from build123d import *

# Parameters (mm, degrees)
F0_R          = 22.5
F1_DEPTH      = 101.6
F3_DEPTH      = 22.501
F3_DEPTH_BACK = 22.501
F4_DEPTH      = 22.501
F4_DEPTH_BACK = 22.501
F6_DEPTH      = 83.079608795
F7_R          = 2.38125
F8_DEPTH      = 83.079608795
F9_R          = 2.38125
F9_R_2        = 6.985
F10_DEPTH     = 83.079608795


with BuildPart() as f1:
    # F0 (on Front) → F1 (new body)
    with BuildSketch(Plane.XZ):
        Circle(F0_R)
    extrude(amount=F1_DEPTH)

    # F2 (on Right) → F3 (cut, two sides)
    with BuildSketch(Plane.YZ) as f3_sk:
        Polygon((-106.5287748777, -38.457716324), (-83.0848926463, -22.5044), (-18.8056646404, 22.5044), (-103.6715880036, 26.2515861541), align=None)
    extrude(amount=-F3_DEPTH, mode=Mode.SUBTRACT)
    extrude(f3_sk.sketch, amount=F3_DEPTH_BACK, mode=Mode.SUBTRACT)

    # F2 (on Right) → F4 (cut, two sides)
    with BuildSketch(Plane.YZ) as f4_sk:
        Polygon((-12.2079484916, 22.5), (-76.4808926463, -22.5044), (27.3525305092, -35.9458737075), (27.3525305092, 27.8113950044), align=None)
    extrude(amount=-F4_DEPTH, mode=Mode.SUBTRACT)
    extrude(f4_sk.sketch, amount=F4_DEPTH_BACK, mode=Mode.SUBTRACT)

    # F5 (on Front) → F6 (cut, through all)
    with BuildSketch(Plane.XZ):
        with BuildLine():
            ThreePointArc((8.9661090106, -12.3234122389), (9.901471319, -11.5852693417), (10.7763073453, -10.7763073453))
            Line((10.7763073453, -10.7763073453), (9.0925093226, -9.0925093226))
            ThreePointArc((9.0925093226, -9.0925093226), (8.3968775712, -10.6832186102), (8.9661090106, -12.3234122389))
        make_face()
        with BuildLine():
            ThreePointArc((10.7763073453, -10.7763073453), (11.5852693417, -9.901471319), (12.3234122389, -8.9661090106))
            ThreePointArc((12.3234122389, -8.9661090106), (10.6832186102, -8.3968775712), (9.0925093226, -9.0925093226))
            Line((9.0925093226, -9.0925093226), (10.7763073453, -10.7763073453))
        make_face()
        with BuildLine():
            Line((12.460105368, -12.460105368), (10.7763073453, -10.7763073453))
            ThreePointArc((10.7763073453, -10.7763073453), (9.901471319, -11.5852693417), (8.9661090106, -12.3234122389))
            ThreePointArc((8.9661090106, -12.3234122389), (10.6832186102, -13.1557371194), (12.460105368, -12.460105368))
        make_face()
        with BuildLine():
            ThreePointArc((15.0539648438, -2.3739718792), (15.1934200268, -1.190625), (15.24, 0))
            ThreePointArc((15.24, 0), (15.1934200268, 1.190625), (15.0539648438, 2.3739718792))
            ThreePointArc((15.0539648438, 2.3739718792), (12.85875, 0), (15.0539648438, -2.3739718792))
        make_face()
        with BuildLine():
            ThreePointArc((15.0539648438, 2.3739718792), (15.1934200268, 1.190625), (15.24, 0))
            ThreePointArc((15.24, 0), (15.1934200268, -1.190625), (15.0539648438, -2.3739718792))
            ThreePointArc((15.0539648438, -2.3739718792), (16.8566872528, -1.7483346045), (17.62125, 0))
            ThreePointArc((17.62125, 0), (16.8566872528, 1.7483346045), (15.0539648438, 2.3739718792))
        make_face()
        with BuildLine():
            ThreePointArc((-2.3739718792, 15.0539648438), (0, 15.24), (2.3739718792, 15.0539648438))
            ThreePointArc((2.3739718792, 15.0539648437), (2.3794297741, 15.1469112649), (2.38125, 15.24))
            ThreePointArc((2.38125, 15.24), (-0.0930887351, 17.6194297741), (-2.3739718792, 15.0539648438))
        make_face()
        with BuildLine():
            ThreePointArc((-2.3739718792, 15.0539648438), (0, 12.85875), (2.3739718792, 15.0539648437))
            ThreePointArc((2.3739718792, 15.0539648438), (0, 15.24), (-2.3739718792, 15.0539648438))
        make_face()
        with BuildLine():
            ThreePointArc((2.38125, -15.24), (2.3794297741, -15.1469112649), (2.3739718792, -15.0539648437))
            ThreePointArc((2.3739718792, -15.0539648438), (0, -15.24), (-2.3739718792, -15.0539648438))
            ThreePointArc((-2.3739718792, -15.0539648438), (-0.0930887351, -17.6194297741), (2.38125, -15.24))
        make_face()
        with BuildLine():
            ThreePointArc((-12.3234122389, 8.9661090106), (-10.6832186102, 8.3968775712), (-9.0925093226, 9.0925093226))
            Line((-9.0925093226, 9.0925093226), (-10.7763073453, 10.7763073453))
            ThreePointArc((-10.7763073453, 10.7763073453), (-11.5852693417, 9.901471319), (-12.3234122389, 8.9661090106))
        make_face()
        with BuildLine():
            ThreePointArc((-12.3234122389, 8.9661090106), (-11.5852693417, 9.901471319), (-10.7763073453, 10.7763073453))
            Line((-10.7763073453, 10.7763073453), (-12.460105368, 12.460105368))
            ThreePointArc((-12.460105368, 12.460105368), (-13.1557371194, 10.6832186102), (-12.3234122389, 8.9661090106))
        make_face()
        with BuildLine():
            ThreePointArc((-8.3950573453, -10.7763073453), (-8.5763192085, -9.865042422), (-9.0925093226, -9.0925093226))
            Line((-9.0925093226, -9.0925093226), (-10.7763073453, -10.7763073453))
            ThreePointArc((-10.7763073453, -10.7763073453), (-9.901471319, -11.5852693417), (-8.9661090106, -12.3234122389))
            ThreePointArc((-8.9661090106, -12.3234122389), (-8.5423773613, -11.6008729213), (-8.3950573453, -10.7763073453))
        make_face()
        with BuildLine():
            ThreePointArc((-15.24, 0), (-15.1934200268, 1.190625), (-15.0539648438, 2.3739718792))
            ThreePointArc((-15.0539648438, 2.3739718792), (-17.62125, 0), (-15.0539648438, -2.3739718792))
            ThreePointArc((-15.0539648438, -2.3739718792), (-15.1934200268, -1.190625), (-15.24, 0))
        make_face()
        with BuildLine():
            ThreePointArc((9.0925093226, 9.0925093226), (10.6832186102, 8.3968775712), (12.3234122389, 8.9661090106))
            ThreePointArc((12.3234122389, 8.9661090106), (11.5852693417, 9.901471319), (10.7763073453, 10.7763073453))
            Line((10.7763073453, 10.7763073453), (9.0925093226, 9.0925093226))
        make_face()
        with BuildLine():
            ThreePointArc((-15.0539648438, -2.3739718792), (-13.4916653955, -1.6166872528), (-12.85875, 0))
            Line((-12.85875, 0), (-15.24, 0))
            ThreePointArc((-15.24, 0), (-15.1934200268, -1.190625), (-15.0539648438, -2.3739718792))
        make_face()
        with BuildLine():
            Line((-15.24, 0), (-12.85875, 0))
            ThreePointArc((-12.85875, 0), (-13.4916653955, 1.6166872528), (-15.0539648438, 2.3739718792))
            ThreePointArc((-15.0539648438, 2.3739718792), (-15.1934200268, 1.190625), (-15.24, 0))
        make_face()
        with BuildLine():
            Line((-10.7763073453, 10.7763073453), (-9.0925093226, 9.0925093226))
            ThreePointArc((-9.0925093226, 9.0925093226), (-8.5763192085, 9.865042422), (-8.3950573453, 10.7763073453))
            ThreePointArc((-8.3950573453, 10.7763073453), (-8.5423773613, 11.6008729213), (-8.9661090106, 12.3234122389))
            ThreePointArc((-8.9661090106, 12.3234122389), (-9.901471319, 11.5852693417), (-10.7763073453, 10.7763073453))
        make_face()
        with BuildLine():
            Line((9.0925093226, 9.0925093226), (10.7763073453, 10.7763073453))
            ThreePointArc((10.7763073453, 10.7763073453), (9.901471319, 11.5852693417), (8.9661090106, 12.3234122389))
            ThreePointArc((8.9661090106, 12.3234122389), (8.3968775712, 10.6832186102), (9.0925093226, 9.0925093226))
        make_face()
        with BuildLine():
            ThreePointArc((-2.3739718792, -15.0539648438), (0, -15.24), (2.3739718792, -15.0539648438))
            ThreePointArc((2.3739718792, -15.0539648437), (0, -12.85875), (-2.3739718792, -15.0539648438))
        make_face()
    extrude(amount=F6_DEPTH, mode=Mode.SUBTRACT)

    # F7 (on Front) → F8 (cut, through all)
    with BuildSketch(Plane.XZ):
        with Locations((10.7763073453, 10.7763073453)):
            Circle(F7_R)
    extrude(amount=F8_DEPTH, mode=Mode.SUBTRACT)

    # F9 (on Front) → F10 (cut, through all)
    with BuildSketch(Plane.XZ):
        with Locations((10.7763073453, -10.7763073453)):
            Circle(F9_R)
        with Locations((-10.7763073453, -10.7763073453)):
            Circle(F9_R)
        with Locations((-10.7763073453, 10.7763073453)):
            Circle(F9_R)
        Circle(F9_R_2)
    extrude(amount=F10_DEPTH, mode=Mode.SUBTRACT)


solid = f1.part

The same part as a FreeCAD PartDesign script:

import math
import FreeCAD as App
import Part
import Sketcher
Q = App.Units.Quantity

doc = App.newDocument("Part")
body = doc.addObject("PartDesign::Body", "Body")

sketch1 = body.newObject("Sketcher::SketchObject", "Sketch")
sketch1.AttachmentSupport = (doc.getObject("XZ_Plane"), [""])
sketch1.MapMode = "FlatFace"
sketch1.addGeometry(Part.Circle(App.Vector(0, 0, 0), App.Vector(0, 0, 1), 22.5), False)
sketch1.addConstraint([
    Sketcher.Constraint("Coincident", 0, 3, -1, 1),
    Sketcher.Constraint("Diameter", 0, 45.0),
])
pad1 = body.newObject("PartDesign::Pad", "Pad")
pad1.Profile = sketch1
pad1.Length = Q("4 in")

sketch2 = body.newObject("Sketcher::SketchObject", "Sketch001")
sketch2.AttachmentSupport = (doc.getObject("YZ_Plane"), [""])
sketch2.MapMode = "FlatFace"
sketch2.addGeometry([
    Part.LineSegment(App.Vector(-106.528775, -38.457716, 0), App.Vector(-83.084893, -22.5044, 0)),
    Part.LineSegment(App.Vector(-83.084893, -22.5044, 0), App.Vector(-18.805665, 22.5044, 0)),
    Part.LineSegment(App.Vector(-18.805665, 22.5044, 0), App.Vector(-103.671588, 26.251586, 0)),
    Part.LineSegment(App.Vector(-103.671588, 26.251586, 0), App.Vector(-106.528775, -38.457716, 0)),
], False)
sketch2.addConstraint([
    Sketcher.Constraint("Coincident", 0, 2, 1, 1),
    Sketcher.Constraint("Coincident", 1, 2, 2, 1),
    Sketcher.Constraint("Coincident", 2, 2, 3, 1),
    Sketcher.Constraint("Coincident", 3, 2, 0, 1),
    Sketcher.Constraint("Perpendicular", 2, 3),
    Sketcher.Constraint("Angle", 1, Q("35 deg")),
    Sketcher.Constraint("DistanceY", 0, 2, -1, 1, Q("0.886 in")),
    Sketcher.Constraint("DistanceY", -1, 1, 1, 2, Q("0.886 in")),
    Sketcher.Constraint("DistanceX", 2, 2, 0, 2, Q("0.8104998 in")),
    Sketcher.Constraint("Distance", 0, 28.357079),
    Sketcher.Constraint("Distance", 2, 84.94861),
    Sketcher.Constraint("DistanceX", 2, 2, -1, 1, 103.671588),
])
pocket1 = body.newObject("PartDesign::Pocket", "Pocket")
pocket1.Profile = sketch2
pocket1.Type = "ThroughAll"
pocket1.Midplane = True

sketch3 = body.newObject("Sketcher::SketchObject", "Sketch002")
sketch3.AttachmentSupport = (doc.getObject("YZ_Plane"), [""])
sketch3.MapMode = "FlatFace"
sketch3.addGeometry([
    Part.LineSegment(App.Vector(-12.207948, 22.5, 0), App.Vector(-76.480893, -22.5044, 0)),
    Part.LineSegment(App.Vector(-76.480893, -22.5044, 0), App.Vector(27.352531, -35.945874, 0)),
    Part.LineSegment(App.Vector(27.352531, -35.945874, 0), App.Vector(27.352531, 27.811395, 0)),
    Part.LineSegment(App.Vector(27.352531, 27.811395, 0), App.Vector(-12.207948, 22.5, 0)),
], False)
sketch3.addConstraint([
    Sketcher.Constraint("Coincident", 0, 2, 1, 1),
    Sketcher.Constraint("Coincident", 1, 2, 2, 1),
    Sketcher.Constraint("Coincident", 2, 2, 3, 1),
    Sketcher.Constraint("Coincident", 3, 2, 0, 1),
    Sketcher.Constraint("Vertical", 2),
    Sketcher.Constraint("Angle", 0, Q("-145 deg")),
    Sketcher.Constraint("DistanceY", 0, 2, -1, 1, Q("0.886 in")),
    Sketcher.Constraint("DistanceY", 2, 1, 2, 2, 63.757269),
    Sketcher.Constraint("DistanceY", -1, 1, 3, 2, 22.5),
    Sketcher.Constraint("Distance", 3, 39.915441),
    Sketcher.Constraint("DistanceX", -1, 1, 1, 2, 27.352531),
    Sketcher.Constraint("DistanceX", 3, 2, -1, 1, 12.207948),
])
pocket2 = body.newObject("PartDesign::Pocket", "Pocket001")
pocket2.Profile = sketch3
pocket2.Type = "ThroughAll"
pocket2.Midplane = True

sketch4 = body.newObject("Sketcher::SketchObject", "Sketch003")
sketch4.AttachmentSupport = (doc.getObject("XZ_Plane"), [""])
sketch4.MapMode = "FlatFace"
sketch4.addGeometry([
    Part.ArcOfCircle(Part.Circle(App.Vector(0, 0, 0), App.Vector(0, 0, 1), 15.24), math.radians(-45), math.radians(-36.038402)),
    Part.ArcOfCircle(Part.Circle(App.Vector(10.776307, -10.776307, 0), App.Vector(0, 0, 1), 2.38125), math.radians(49.480799), math.radians(135)),
    Part.ArcOfCircle(Part.Circle(App.Vector(10.776307, -10.776307, 0), App.Vector(0, 0, 1), 2.38125), math.radians(135), math.radians(220.519201)),
    Part.ArcOfCircle(Part.Circle(App.Vector(10.776307, -10.776307, 0), App.Vector(0, 0, 1), 2.38125), math.radians(-139.480799), math.radians(-45)),
    Part.LineSegment(App.Vector(12.460105, -12.460105, 0), App.Vector(10.776307, -10.776307, 0)),
    Part.ArcOfCircle(Part.Circle(App.Vector(15.24, 0, 0), App.Vector(0, 0, 1), 2.38125), math.radians(94.480799), math.radians(265.519201)),
    Part.ArcOfCircle(Part.Circle(App.Vector(15.24, 0, 0), App.Vector(0, 0, 1), 2.38125), math.radians(-94.480799), math.radians(0)),
    Part.ArcOfCircle(Part.Circle(App.Vector(15.24, 0, 0), App.Vector(0, 0, 1), 2.38125), math.radians(0), math.radians(94.480799)),
    Part.ArcOfCircle(Part.Circle(App.Vector(0, 15.24, 0), App.Vector(0, 0, 1), 2.38125), math.radians(-4.480799), math.radians(0)),
    Part.ArcOfCircle(Part.Circle(App.Vector(0, 15.24, 0), App.Vector(0, 0, 1), 2.38125), math.radians(0), math.radians(184.480799)),
    Part.ArcOfCircle(Part.Circle(App.Vector(0, 15.24, 0), App.Vector(0, 0, 1), 2.38125), math.radians(-175.519201), math.radians(-4.480799)),
    Part.ArcOfCircle(Part.Circle(App.Vector(0, -15.24, 0), App.Vector(0, 0, 1), 2.38125), math.radians(0), math.radians(4.480799)),
    Part.ArcOfCircle(Part.Circle(App.Vector(0, -15.24, 0), App.Vector(0, 0, 1), 2.38125), math.radians(4.480799), math.radians(175.519201)),
    Part.ArcOfCircle(Part.Circle(App.Vector(0, -15.24, 0), App.Vector(0, 0, 1), 2.38125), math.radians(175.519201), math.radians(360)),
    Part.ArcOfCircle(Part.Circle(App.Vector(-10.776307, 10.776307, 0), App.Vector(0, 0, 1), 2.38125), math.radians(-130.519201), math.radians(-45)),
    Part.ArcOfCircle(Part.Circle(App.Vector(-10.776307, 10.776307, 0), App.Vector(0, 0, 1), 2.38125), math.radians(-45), math.radians(0)),
    Part.ArcOfCircle(Part.Circle(App.Vector(-10.776307, 10.776307, 0), App.Vector(0, 0, 1), 2.38125), math.radians(0), math.radians(40.519201)),
    Part.ArcOfCircle(Part.Circle(App.Vector(0, 0, 0), App.Vector(0, 0, 1), 15.24), math.radians(126.038402), math.radians(135)),
    Part.LineSegment(App.Vector(-10.776307, 10.776307, 0), App.Vector(-12.460105, 12.460105, 0)),
    Part.ArcOfCircle(Part.Circle(App.Vector(-10.776307, 10.776307, 0), App.Vector(0, 0, 1), 2.38125), math.radians(135), math.radians(229.480799)),
    Part.ArcOfCircle(Part.Circle(App.Vector(-10.776307, -10.776307, 0), App.Vector(0, 0, 1), 2.38125), math.radians(0), math.radians(45)),
    Part.LineSegment(App.Vector(-9.092509, -9.092509, 0), App.Vector(-10.776307, -10.776307, 0)),
    Part.ArcOfCircle(Part.Circle(App.Vector(0, 0, 0), App.Vector(0, 0, 1), 15.24), math.radians(-135), math.radians(-126.038402)),
    Part.ArcOfCircle(Part.Circle(App.Vector(-10.776307, -10.776307, 0), App.Vector(0, 0, 1), 2.38125), math.radians(-40.519201), math.radians(0)),
    Part.ArcOfCircle(Part.Circle(App.Vector(-15.24, 0, 0), App.Vector(0, 0, 1), 2.38125), math.radians(85.519201), math.radians(274.480799)),
    Part.ArcOfCircle(Part.Circle(App.Vector(-15.24, 0, 0), App.Vector(0, 0, 1), 2.38125), math.radians(-85.519201), math.radians(0)),
    Part.ArcOfCircle(Part.Circle(App.Vector(-15.24, 0, 0), App.Vector(0, 0, 1), 2.38125), math.radians(0), math.radians(85.519201)),
    Part.ArcOfCircle(Part.Circle(App.Vector(10.776307, 10.776307, 0), App.Vector(0, 0, 1), 2.38125), math.radians(-135), math.radians(-49.480799)),
    Part.ArcOfCircle(Part.Circle(App.Vector(0, 0, 0), App.Vector(0, 0, 1), 15.24), math.radians(36.038402), math.radians(45)),
    Part.ArcOfCircle(Part.Circle(App.Vector(0, 0, 0), App.Vector(0, 0, 1), 15.24), math.radians(45), math.radians(53.961598)),
    Part.ArcOfCircle(Part.Circle(App.Vector(10.776307, 10.776307, 0), App.Vector(0, 0, 1), 2.38125), math.radians(139.480799), math.radians(225)),
], False)
sketch4.addConstraint([
    Sketcher.Constraint("Coincident", 0, 2, 1, 1),
    Sketcher.Constraint("Tangent", 1, 2, 2, 1),
    Sketcher.Constraint("Tangent", 2, 2, 3, 1),
    Sketcher.Constraint("Coincident", 3, 2, 4, 1),
    Sketcher.Constraint("Coincident", 4, 2, 0, 1),
    Sketcher.Constraint("Tangent", 5, 2, 6, 1),
    Sketcher.Constraint("Tangent", 6, 2, 7, 1),
    Sketcher.Constraint("Tangent", 7, 2, 5, 1),
    Sketcher.Constraint("Tangent", 8, 2, 9, 1),
    Sketcher.Constraint("Tangent", 9, 2, 10, 1),
    Sketcher.Constraint("Tangent", 10, 2, 8, 1),
    Sketcher.Constraint("Tangent", 11, 2, 12, 1),
    Sketcher.Constraint("Tangent", 12, 2, 13, 1),
    Sketcher.Constraint("Tangent", 13, 2, 11, 1),
    Sketcher.Constraint("Tangent", 14, 2, 15, 1),
    Sketcher.Constraint("Tangent", 15, 2, 16, 1),
    Sketcher.Constraint("Coincident", 16, 2, 17, 1),
    Sketcher.Constraint("Coincident", 17, 2, 18, 1),
    Sketcher.Constraint("Coincident", 18, 2, 19, 1),
    Sketcher.Constraint("Tangent", 19, 2, 14, 1),
    Sketcher.Constraint("Coincident", 20, 2, 21, 1),
    Sketcher.Constraint("Coincident", 21, 2, 22, 1),
    Sketcher.Constraint("Coincident", 22, 2, 23, 1),
    Sketcher.Constraint("Tangent", 23, 2, 20, 1),
    Sketcher.Constraint("Tangent", 24, 2, 25, 1),
    Sketcher.Constraint("Tangent", 25, 2, 26, 1),
    Sketcher.Constraint("Tangent", 26, 2, 24, 1),
    Sketcher.Constraint("Coincident", 27, 2, 28, 1),
    Sketcher.Constraint("Tangent", 28, 2, 29, 1),
    Sketcher.Constraint("Coincident", 29, 2, 30, 1),
    Sketcher.Constraint("Tangent", 30, 2, 27, 1),
    Sketcher.Constraint("Coincident", 0, 3, -1, 1),
    Sketcher.Constraint("Coincident", 17, 3, -1, 1),
    Sketcher.Constraint("Coincident", 22, 3, -1, 1),
    Sketcher.Constraint("Coincident", 28, 3, -1, 1),
    Sketcher.Constraint("Coincident", 3, 3, 1, 3),
    Sketcher.Constraint("Coincident", 16, 3, 14, 3),
    Sketcher.Constraint("Coincident", 4, 2, 1, 3),
    Sketcher.Constraint("Coincident", 17, 2, 14, 3),
    Sketcher.Constraint("Coincident", 21, 2, 20, 3),
    Sketcher.Constraint("Coincident", 28, 2, 27, 3),
    Sketcher.Constraint("Equal", 3, 5),
    Sketcher.Constraint("Equal", 7, 8),
    Sketcher.Constraint("Equal", 10, 11),
    Sketcher.Constraint("Equal", 13, 14),
    Sketcher.Constraint("Equal", 0, 17),
    Sketcher.Constraint("Equal", 16, 19),
    Sketcher.Constraint("Equal", 19, 20),
    Sketcher.Constraint("Equal", 17, 22),
    Sketcher.Constraint("Equal", 20, 23),
    Sketcher.Constraint("Equal", 23, 24),
    Sketcher.Constraint("Equal", 26, 27),
    Sketcher.Constraint("Equal", 22, 28),
    Sketcher.Constraint("Equal", 28, 29),
    Sketcher.Constraint("Equal", 27, 30),
    Sketcher.Constraint("Symmetric", 8, 3, 11, 3, -1, 1),
    Sketcher.Constraint("Symmetric", 5, 3, 24, 3, -1, 1),
    Sketcher.Constraint("Symmetric", 2, 2, 16, 2, -1, 1),
    Sketcher.Constraint("Symmetric", 9, 2, 10, 2, -2),
    Sketcher.Constraint("Symmetric", 5, 2, 24, 2, -2),
    Sketcher.Constraint("Symmetric", 19, 2, 27, 2, -2),
    Sketcher.Constraint("Symmetric", 15, 2, 23, 2, -1),
    Sketcher.Constraint("PointOnObject", 6, 2, -1),
    Sketcher.Constraint("PointOnObject", 25, 2, -1),
    Sketcher.Constraint("Parallel", 4, 18),
    Sketcher.Constraint("Perpendicular", 18, 21),
    Sketcher.Constraint("Horizontal", 10, 3, 8, 2),
    Sketcher.Constraint("Horizontal", 11, 2, 12, 2),
    Sketcher.Constraint("Horizontal", 12, 3, 13, 2),
    Sketcher.Constraint("Horizontal", 30, 3, 15, 2),
    Sketcher.Constraint("Horizontal", 1, 2, 20, 2),
    Sketcher.Constraint("Horizontal", 7, 2, 26, 2),
    Sketcher.Constraint("Horizontal", 14, 2, 30, 2),
    Sketcher.Constraint("Vertical", 5, 2, 7, 2),
    Sketcher.Constraint("Vertical", 10, 2, 11, 2),
    Sketcher.Constraint("Vertical", 14, 2, 20, 2),
    Sketcher.Constraint("Radius", 0, Q("0.6 in")),
    Sketcher.Constraint("Angle", 4, Q("135 deg")),
    Sketcher.Constraint("Radius", 1, Q("0.09375 in")),
    Sketcher.Constraint("DistanceX", -1, 1, 5, 3, Q("0.6 in")),
    Sketcher.Constraint("DistanceY", -1, 1, 8, 3, Q("0.6 in")),
    Sketcher.Constraint("DistanceX", 2, 2, 1, 3, 1.810198),
    Sketcher.Constraint("DistanceY", 5, 2, -1, 1, 2.373972),
    Sketcher.Constraint("DistanceX", 9, 2, -1, 1, 2.373972),
])
pocket3 = body.newObject("PartDesign::Pocket", "Pocket002")
pocket3.Profile = sketch4
pocket3.Type = "ThroughAll"
pocket3.Reversed = True

sketch5 = body.newObject("Sketcher::SketchObject", "Sketch004")
sketch5.AttachmentSupport = (doc.getObject("XZ_Plane"), [""])
sketch5.MapMode = "FlatFace"
sketch5.addGeometry(Part.Circle(App.Vector(10.776307, 10.776307, 0), App.Vector(0, 0, 1), 2.38125), False)
sketch5.addConstraint([
    Sketcher.Constraint("Diameter", 0, Q("0.1875 in")),
    Sketcher.Constraint("DistanceX", -1, 1, 0, 3, 10.776307),
    Sketcher.Constraint("DistanceY", -1, 1, 0, 3, 10.776307),
])
pocket4 = body.newObject("PartDesign::Pocket", "Pocket003")
pocket4.Profile = sketch5
pocket4.Type = "ThroughAll"
pocket4.Reversed = True

sketch6 = body.newObject("Sketcher::SketchObject", "Sketch005")
sketch6.AttachmentSupport = (doc.getObject("XZ_Plane"), [""])
sketch6.MapMode = "FlatFace"
sketch6.addGeometry([
    Part.Circle(App.Vector(10.776307, -10.776307, 0), App.Vector(0, 0, 1), 2.38125),
    Part.Circle(App.Vector(-10.776307, -10.776307, 0), App.Vector(0, 0, 1), 2.38125),
    Part.Circle(App.Vector(-10.776307, 10.776307, 0), App.Vector(0, 0, 1), 2.38125),
    Part.Circle(App.Vector(0, 0, 0), App.Vector(0, 0, 1), 6.985),
], False)
sketch6.addConstraint([
    Sketcher.Constraint("Coincident", 3, 3, -1, 1),
    Sketcher.Constraint("Equal", 0, 1),
    Sketcher.Constraint("Equal", 1, 2),
    Sketcher.Constraint("Symmetric", 0, 3, 2, 3, -1, 1),
    Sketcher.Constraint("Symmetric", 0, 3, 1, 3, -2),
    Sketcher.Constraint("Diameter", 3, Q("0.55 in")),
    Sketcher.Constraint("Diameter", 0, Q("0.1875 in")),
    Sketcher.Constraint("DistanceX", -1, 1, 0, 3, 10.776307),
    Sketcher.Constraint("DistanceY", 0, 3, -1, 1, 10.776307),
])
pocket5 = body.newObject("PartDesign::Pocket", "Pocket004")
pocket5.Profile = sketch6
pocket5.Type = "ThroughAll"
pocket5.Reversed = True

doc.recompute()
